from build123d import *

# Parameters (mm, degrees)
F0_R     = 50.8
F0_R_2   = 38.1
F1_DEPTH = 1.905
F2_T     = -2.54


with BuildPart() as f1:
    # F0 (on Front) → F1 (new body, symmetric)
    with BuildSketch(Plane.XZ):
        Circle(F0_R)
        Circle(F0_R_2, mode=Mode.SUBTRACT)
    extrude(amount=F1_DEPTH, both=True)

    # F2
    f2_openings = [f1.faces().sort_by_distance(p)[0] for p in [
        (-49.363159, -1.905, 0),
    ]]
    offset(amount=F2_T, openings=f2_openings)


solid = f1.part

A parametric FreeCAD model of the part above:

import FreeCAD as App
import Part
import Sketcher

V = App.Vector
Q = App.Units.Quantity


def faces_at(feature, points):
    """Names of the faces that lie closest to the given points."""
    faces = feature.Shape.Faces
    near = lambda p: min(range(len(faces)), key=lambda i: faces[i].distToShape(Part.Vertex(*p))[0])
    return sorted({f"Face{near(p) + 1}" for p in points})

doc = App.newDocument("Part")
params = doc.addObject("Spreadsheet::Sheet", "Params")
for row, (alias, value) in enumerate([
    ("sketch1_diameter", "4 in"),
    ("sketch1_diameter2", "3 in"),
    ("pad1_length", "0.15 in"),
    ("thickness_wall", "0.1 in"),
], start=1):
    params.set(f"A{row}", alias)
    params.set(f"B{row}", "=" + value)
    params.setAlias(f"B{row}", alias)

body = doc.addObject("PartDesign::Body", "Body")

sketch1 = doc.addObject("Sketcher::SketchObject", "Sketch")
body.addObject(sketch1)
sketch1.AttachmentSupport = (doc.XZ_Plane, [""])
sketch1.MapMode = "FlatFace"
sketch1.addGeometry([
    Part.Circle(V(0, 0, 0), V(0, 0, 1), 51),
    Part.Circle(V(0, 0, 0), V(0, 0, 1), 38),
], False)
sketch1.addConstraint([
    Sketcher.Constraint("Coincident", 0, 3, -1, 1),
    Sketcher.Constraint("Coincident", 1, 3, -1, 1),
    Sketcher.Constraint("Diameter", 0, Q("4 in")),
    Sketcher.Constraint("Diameter", 1, Q("3 in")),
])
sketch1.setExpression("Constraints[2]", "Params.sketch1_diameter")
sketch1.setExpression("Constraints[3]", "Params.sketch1_diameter2")
pad1 = doc.addObject("PartDesign::Pad", "Pad")
body.addObject(pad1)
pad1.Profile = sketch1
pad1.setExpression("Length", "Params.pad1_length")
pad1.Midplane = True
doc.recompute()

thickness = doc.addObject("PartDesign::Thickness", "Thickness")
body.addObject(thickness)
thickness.Base = (pad1, faces_at(pad1, [(-40.64, -1.905, 0)]))
thickness.setExpression("Value", "Params.thickness_wall")
thickness.Reversed = True
thickness.Join = "Arc"

doc.recompute()
